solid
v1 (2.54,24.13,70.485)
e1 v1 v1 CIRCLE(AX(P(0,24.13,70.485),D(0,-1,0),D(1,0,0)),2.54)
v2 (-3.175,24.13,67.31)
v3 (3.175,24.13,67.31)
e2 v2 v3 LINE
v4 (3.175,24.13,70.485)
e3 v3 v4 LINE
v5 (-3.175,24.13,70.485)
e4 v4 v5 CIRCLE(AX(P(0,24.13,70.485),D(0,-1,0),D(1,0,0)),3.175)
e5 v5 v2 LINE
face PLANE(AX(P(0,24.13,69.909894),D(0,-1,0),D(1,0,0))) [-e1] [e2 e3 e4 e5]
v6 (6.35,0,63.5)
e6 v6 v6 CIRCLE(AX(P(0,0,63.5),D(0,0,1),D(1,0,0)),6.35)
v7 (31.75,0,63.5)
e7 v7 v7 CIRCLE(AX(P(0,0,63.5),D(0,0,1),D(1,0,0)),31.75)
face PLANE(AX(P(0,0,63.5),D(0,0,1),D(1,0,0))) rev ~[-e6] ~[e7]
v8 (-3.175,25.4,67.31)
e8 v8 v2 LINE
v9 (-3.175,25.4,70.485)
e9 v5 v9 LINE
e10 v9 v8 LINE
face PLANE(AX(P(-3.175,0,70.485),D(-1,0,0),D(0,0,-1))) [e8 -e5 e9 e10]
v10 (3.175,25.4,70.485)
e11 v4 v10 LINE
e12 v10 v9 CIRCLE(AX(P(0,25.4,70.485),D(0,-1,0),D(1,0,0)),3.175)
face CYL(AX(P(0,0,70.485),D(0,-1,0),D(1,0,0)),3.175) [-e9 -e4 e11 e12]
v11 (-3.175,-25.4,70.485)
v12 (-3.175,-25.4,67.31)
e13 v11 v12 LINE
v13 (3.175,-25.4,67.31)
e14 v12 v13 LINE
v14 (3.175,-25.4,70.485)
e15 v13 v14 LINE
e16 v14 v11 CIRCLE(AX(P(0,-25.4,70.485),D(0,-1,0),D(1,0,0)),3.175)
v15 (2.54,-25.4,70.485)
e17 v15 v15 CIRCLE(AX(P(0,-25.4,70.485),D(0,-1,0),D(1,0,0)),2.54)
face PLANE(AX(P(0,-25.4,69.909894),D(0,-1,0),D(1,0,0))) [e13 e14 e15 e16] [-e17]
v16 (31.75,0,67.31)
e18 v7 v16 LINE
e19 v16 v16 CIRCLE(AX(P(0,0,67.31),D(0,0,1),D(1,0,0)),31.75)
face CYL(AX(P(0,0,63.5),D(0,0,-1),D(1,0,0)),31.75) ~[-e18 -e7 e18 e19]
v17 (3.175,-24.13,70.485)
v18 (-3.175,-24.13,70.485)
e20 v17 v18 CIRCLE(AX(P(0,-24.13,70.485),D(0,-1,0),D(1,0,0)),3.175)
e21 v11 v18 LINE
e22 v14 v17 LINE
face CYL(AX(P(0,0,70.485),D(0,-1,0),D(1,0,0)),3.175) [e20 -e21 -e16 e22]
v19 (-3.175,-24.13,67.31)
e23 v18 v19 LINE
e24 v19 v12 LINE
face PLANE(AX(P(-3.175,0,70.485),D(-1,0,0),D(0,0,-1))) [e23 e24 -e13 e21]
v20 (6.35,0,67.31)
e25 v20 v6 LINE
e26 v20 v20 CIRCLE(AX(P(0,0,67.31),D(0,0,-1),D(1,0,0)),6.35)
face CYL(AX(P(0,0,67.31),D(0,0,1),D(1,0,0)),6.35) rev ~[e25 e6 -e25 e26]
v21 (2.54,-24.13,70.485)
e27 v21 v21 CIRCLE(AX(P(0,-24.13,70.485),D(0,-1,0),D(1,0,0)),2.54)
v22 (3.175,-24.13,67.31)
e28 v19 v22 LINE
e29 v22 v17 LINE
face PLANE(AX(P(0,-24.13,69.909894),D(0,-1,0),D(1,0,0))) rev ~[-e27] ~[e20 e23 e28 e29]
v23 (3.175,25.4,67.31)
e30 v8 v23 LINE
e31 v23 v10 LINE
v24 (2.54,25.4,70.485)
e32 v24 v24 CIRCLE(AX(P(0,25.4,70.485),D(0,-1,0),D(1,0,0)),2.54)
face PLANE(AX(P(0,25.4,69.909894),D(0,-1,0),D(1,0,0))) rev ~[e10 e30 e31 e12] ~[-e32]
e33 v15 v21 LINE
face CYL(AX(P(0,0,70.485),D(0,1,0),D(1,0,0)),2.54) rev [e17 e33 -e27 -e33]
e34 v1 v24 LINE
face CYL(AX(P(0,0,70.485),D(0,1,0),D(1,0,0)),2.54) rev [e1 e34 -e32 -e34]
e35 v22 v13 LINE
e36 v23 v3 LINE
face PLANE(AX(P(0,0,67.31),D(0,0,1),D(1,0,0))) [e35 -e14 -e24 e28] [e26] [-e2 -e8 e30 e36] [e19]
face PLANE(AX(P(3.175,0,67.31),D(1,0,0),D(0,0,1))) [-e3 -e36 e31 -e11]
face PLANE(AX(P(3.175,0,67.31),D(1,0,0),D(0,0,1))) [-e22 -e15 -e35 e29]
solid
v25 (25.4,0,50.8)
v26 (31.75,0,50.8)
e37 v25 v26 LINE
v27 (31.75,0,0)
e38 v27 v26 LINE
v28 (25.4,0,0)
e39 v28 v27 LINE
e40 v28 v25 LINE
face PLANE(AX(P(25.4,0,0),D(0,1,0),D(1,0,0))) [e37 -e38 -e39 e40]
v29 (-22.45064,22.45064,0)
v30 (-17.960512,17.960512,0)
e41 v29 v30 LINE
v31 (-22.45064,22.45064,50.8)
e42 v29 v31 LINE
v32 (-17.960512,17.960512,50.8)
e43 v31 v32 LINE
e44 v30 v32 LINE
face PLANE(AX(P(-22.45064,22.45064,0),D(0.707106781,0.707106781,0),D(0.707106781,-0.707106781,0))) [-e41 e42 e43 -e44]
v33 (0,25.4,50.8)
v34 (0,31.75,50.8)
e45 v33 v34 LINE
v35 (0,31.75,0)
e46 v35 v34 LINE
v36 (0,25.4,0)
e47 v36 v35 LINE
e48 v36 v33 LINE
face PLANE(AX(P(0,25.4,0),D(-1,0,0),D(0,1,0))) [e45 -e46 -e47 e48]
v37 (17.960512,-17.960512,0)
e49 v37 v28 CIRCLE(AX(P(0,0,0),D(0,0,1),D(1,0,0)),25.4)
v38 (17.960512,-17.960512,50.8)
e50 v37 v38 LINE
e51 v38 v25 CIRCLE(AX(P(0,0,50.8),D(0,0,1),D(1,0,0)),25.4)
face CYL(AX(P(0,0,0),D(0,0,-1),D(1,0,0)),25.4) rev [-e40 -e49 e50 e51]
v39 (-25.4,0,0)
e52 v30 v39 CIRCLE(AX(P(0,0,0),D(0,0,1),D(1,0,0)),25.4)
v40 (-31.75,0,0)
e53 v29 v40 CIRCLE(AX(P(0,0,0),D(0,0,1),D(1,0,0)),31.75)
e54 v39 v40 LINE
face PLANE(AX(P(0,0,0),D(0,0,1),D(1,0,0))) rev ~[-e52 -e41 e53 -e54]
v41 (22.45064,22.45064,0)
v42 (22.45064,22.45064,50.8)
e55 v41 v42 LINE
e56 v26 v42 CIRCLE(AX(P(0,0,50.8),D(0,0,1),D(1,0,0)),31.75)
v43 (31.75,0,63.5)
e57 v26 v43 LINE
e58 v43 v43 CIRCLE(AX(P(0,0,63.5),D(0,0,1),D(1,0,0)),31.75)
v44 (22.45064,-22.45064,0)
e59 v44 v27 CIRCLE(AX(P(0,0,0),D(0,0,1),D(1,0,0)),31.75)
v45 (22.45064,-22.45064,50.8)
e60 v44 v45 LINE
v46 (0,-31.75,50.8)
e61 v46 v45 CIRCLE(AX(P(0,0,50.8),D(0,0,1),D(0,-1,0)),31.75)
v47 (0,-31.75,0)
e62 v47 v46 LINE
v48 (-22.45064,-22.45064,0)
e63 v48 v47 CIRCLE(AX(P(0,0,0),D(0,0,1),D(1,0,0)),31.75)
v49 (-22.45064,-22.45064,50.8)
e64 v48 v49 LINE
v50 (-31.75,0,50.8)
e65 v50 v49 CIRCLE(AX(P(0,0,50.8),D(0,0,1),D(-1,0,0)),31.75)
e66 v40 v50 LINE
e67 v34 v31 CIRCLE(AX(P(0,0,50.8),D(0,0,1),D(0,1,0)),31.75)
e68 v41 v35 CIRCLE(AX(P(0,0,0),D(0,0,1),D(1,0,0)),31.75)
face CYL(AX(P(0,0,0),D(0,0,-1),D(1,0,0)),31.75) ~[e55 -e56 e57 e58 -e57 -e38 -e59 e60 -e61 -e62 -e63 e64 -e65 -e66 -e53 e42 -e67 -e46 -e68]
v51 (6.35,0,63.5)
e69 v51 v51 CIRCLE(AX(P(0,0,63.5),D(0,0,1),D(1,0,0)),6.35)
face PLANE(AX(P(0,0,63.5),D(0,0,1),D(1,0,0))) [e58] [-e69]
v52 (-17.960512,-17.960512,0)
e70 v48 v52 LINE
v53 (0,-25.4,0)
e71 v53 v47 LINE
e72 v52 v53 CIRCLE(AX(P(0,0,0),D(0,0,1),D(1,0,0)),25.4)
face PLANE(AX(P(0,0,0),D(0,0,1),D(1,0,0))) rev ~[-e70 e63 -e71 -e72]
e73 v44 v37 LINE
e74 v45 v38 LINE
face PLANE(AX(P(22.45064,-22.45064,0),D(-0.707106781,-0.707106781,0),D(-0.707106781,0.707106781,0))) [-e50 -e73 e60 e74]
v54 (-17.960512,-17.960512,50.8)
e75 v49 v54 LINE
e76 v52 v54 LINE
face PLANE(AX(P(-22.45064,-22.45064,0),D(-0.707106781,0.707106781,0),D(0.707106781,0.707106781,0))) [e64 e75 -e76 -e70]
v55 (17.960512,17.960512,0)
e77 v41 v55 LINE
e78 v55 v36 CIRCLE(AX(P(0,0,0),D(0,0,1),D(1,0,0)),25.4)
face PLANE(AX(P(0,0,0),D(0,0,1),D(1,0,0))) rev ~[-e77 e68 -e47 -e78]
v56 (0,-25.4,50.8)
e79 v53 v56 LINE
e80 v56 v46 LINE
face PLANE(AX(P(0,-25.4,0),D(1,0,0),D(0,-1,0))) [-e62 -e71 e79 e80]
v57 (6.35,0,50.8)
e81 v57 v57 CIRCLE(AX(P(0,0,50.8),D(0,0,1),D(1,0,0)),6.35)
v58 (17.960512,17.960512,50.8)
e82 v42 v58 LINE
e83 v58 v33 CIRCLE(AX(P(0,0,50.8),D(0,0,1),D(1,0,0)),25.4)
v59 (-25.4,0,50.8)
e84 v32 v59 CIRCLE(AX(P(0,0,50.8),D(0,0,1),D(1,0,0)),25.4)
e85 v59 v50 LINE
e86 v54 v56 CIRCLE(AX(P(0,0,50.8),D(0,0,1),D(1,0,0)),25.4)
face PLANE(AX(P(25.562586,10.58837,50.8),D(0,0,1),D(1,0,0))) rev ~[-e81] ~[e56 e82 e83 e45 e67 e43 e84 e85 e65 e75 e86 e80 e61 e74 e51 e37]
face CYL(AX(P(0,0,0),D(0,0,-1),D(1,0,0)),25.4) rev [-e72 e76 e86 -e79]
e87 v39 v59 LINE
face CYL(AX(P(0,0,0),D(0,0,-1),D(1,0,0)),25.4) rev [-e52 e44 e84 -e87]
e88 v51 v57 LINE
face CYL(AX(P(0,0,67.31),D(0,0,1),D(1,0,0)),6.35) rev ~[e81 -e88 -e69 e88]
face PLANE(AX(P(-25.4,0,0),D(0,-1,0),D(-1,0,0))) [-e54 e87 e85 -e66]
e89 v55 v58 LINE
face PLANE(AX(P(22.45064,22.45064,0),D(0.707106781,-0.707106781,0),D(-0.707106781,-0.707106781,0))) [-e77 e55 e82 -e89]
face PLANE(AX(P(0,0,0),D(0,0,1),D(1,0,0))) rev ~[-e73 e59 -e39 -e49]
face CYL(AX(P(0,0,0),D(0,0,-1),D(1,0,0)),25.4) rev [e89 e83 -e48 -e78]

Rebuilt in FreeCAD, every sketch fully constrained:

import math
import FreeCAD as App
import Part
import Sketcher
from FreeCAD import Vector
Q = App.Units.Quantity

doc = App.newDocument("Part")
body = doc.addObject("PartDesign::Body", "Body")

sketch1 = body.newObject("Sketcher::SketchObject", "Sketch")
sketch1.AttachmentSupport = (doc.getObject("XY_Plane"), [""])
sketch1.MapMode = "FlatFace"
sketch1.addGeometry(Part.Circle(Vector(0, 0, 0), Vector(0, 0, 1), 31.75), False)
sketch1.addConstraint(Sketcher.Constraint("Coincident", 0, 3, -1, 1))
sketch1.addConstraint(Sketcher.Constraint("Diameter", 0, Q("2.5 in")))
pad1 = body.newObject("PartDesign::Pad", "Pad")
pad1.Profile = sketch1
pad1.Length = Q("2.5 in")

sketch2 = body.newObject("Sketcher::SketchObject", "Sketch001")
sketch2.AttachmentSupport = (doc.getObject("XY_Plane"), [""])
sketch2.MapMode = "FlatFace"
sketch2.addGeometry(Part.Circle(Vector(0, 0, 0), Vector(0, 0, 1), 25.4), False)
sketch2.addConstraint(Sketcher.Constraint("Coincident", 0, 3, -1, 1))
sketch2.addConstraint(Sketcher.Constraint("Diameter", 0, Q("2 in")))
pocket1 = body.newObject("PartDesign::Pocket", "Pocket")
pocket1.Profile = sketch2
pocket1.Length = Q("2 in")
pocket1.Reversed = True

sketch3 = body.newObject("Sketcher::SketchObject", "Sketch002")
sketch3.AttachmentSupport = (doc.getObject("XY_Plane"), [""])
sketch3.MapMode = "FlatFace"
sketch3.addGeometry(Part.LineSegment(Vector(-22.45064, -22.45064, 0), Vector(-17.960512, -17.960512, 0)), False)
sketch3.addGeometry(Part.ArcOfCircle(Part.Circle(Vector(0, 0, 0), Vector(0, 0, 1), 25.4), math.radians(180), math.radians(225)), False)
sketch3.addGeometry(Part.LineSegment(Vector(-25.4, 0, 0), Vector(-31.75, 0, 0)), False)
sketch3.addGeometry(Part.ArcOfCircle(Part.Circle(Vector(0, 0, 0), Vector(0, 0, 1), 31.75), math.radians(180), math.radians(225)), False)
sketch3.addGeometry(Part.LineSegment(Vector(22.45064, -22.45064, 0), Vector(17.960512, -17.960512, 0)), False)
sketch3.addGeometry(Part.ArcOfCircle(Part.Circle(Vector(0, 0, 0), Vector(0, 0, 1), 25.4), math.radians(-90), math.radians(-45)), False)
sketch3.addGeometry(Part.LineSegment(Vector(0, -25.4, 0), Vector(0, -31.75, 0)), False)
sketch3.addGeometry(Part.ArcOfCircle(Part.Circle(Vector(0, 0, 0), Vector(0, 0, 1), 31.75), math.radians(-90), math.radians(-45)), False)
sketch3.addGeometry(Part.ArcOfCircle(Part.Circle(Vector(0, 0, 0), Vector(0, 0, 1), 25.4), math.radians(0), math.radians(45)), False)
sketch3.addGeometry(Part.LineSegment(Vector(25.4, 0, 0), Vector(31.75, 0, 0)), False)
sketch3.addGeometry(Part.ArcOfCircle(Part.Circle(Vector(0, 0, 0), Vector(0, 0, 1), 31.75), math.radians(0), math.radians(45)), False)
sketch3.addGeometry(Part.LineSegment(Vector(22.45064, 22.45064, 0), Vector(17.960512, 17.960512, 0)), False)
sketch3.addGeometry(Part.ArcOfCircle(Part.Circle(Vector(0, 0, 0), Vector(0, 0, 1), 25.4), math.radians(90), math.radians(135)), False)
sketch3.addGeometry(Part.LineSegment(Vector(0, 25.4, 0), Vector(0, 31.75, 0)), False)
sketch3.addGeometry(Part.ArcOfCircle(Part.Circle(Vector(0, 0, 0), Vector(0, 0, 1), 31.75), math.radians(90), math.radians(135)), False)
sketch3.addGeometry(Part.LineSegment(Vector(-22.45064, 22.45064, 0), Vector(-17.960512, 17.960512, 0)), False)
sketch3.addConstraint(Sketcher.Constraint("Coincident", 0, 2, 1, 2))
sketch3.addConstraint(Sketcher.Constraint("Coincident", 1, 1, 2, 1))
sketch3.addConstraint(Sketcher.Constraint("Coincident", 2, 2, 3, 1))
sketch3.addConstraint(Sketcher.Constraint("Coincident", 3, 2, 0, 1))
sketch3.addConstraint(Sketcher.Constraint("Coincident", 4, 2, 5, 2))
sketch3.addConstraint(Sketcher.Constraint("Coincident", 5, 1, 6, 1))
sketch3.addConstraint(Sketcher.Constraint("Coincident", 6, 2, 7, 1))
sketch3.addConstraint(Sketcher.Constraint("Coincident", 7, 2, 4, 1))
sketch3.addConstraint(Sketcher.Constraint("Coincident", 8, 1, 9, 1))
sketch3.addConstraint(Sketcher.Constraint("Coincident", 9, 2, 10, 1))
sketch3.addConstraint(Sketcher.Constraint("Coincident", 10, 2, 11, 1))
sketch3.addConstraint(Sketcher.Constraint("Coincident", 11, 2, 8, 2))
sketch3.addConstraint(Sketcher.Constraint("Coincident", 12, 1, 13, 1))
sketch3.addConstraint(Sketcher.Constraint("Coincident", 13, 2, 14, 1))
sketch3.addConstraint(Sketcher.Constraint("Coincident", 14, 2, 15, 1))
sketch3.addConstraint(Sketcher.Constraint("Coincident", 15, 2, 12, 2))
sketch3.addConstraint(Sketcher.Constraint("Horizontal", 2))
sketch3.addConstraint(Sketcher.Constraint("Vertical", 6))
sketch3.addConstraint(Sketcher.Constraint("Horizontal", 9))
sketch3.addConstraint(Sketcher.Constraint("Vertical", 13))
sketch3.addConstraint(Sketcher.Constraint("Coincident", 1, 3, -1, 1))
sketch3.addConstraint(Sketcher.Constraint("Coincident", 3, 3, -1, 1))
sketch3.addConstraint(Sketcher.Constraint("Coincident", 5, 3, -1, 1))
sketch3.addConstraint(Sketcher.Constraint("Coincident", 7, 3, -1, 1))
sketch3.addConstraint(Sketcher.Constraint("Coincident", 8, 3, -1, 1))
sketch3.addConstraint(Sketcher.Constraint("Coincident", 10, 3, -1, 1))
sketch3.addConstraint(Sketcher.Constraint("Coincident", 12, 3, -1, 1))
sketch3.addConstraint(Sketcher.Constraint("Coincident", 14, 3, -1, 1))
sketch3.addConstraint(Sketcher.Constraint("Equal", 1, 5))
sketch3.addConstraint(Sketcher.Constraint("Equal", 3, 7))
sketch3.addConstraint(Sketcher.Constraint("Equal", 5, 8))
sketch3.addConstraint(Sketcher.Constraint("Equal", 7, 10))
sketch3.addConstraint(Sketcher.Constraint("Equal", 8, 12))
sketch3.addConstraint(Sketcher.Constraint("Equal", 10, 14))
sketch3.addConstraint(Sketcher.Constraint("PointOnObject", 1, 1, -1))
sketch3.addConstraint(Sketcher.Constraint("PointOnObject", 5, 1, -2))
sketch3.addConstraint(Sketcher.Constraint("PointOnObject", 8, 1, -1))
sketch3.addConstraint(Sketcher.Constraint("PointOnObject", 12, 1, -2))
sketch3.addConstraint(Sketcher.Constraint("Perpendicular", 0, 4))
sketch3.addConstraint(Sketcher.Constraint("Perpendicular", 4, 11))
sketch3.addConstraint(Sketcher.Constraint("Perpendicular", 11, 15))
sketch3.addConstraint(Sketcher.Constraint("Horizontal", 0, 2, 4, 2))
sketch3.addConstraint(Sketcher.Constraint("Horizontal", 3, 2, 7, 2))
sketch3.addConstraint(Sketcher.Constraint("Horizontal", 10, 2, 14, 2))
sketch3.addConstraint(Sketcher.Constraint("Vertical", 7, 2, 10, 2))
sketch3.addConstraint(Sketcher.Constraint("Radius", 1, Q("1 in")))
sketch3.addConstraint(Sketcher.Constraint("Radius", 3, Q("1.25 in")))
sketch3.addConstraint(Sketcher.Constraint("DistanceX", 3, 2, -1, 1, Q("22.45064 mm")))
pocket2 = body.newObject("PartDesign::Pocket", "Pocket001")
pocket2.Profile = sketch3
pocket2.Length = Q("2 in")
pocket2.Reversed = True
body2 = doc.addObject("PartDesign::Body", "Body001")

sketch4 = body2.newObject("Sketcher::SketchObject", "Sketch003")
sketch4.AttachmentSupport = (doc.getObject("XY_Plane001"), [""])
sketch4.MapMode = "FlatFace"
sketch4.AttachmentOffset = App.Placement(Vector(0, 0, 2.5 * 25.4), App.Rotation())
sketch4.addGeometry(Part.Circle(Vector(0, 0, 0), Vector(0, 0, 1), 31.75), False)
sketch4.addConstraint(Sketcher.Constraint("Coincident", 0, 3, -1, 1))
sketch4.addConstraint(Sketcher.Constraint("Diameter", 0, Q("2.5 in")))
pad2 = body2.newObject("PartDesign::Pad", "Pad001")
pad2.Profile = sketch4
pad2.Length = Q("0.15 in")
body3 = doc.addObject("PartDesign::Body", "Body002")

sketch5 = body3.newObject("Sketcher::SketchObject", "Sketch004")
sketch5.AttachmentSupport = (doc.getObject("XY_Plane002"), [""])
sketch5.MapMode = "FlatFace"
sketch5.AttachmentOffset = App.Placement(Vector(0, 0, 2.65 * 25.4), App.Rotation())
sketch5.addGeometry(Part.Circle(Vector(0, 0, 0), Vector(0, 0, 1), 6.35), False)
sketch5.addConstraint(Sketcher.Constraint("Coincident", 0, 3, -1, 1))
sketch5.addConstraint(Sketcher.Constraint("Diameter", 0, Q("0.5 in")))
pad3 = body3.newObject("PartDesign::Pad", "Pad002")
pad3.Profile = sketch5
pad3.Length = 67.311
pad3.Reversed = True
doc.recompute()

body4 = doc.addObject("PartDesign::Body", "Body003")
body4.BaseFeature = body3
boolean = body.newObject("PartDesign::Boolean", "Boolean")
boolean.Type = "Cut"
boolean.addObjects([body4])
doc.recompute()

sketch6 = body.newObject("Sketcher::SketchObject", "Sketch005")
sketch6.AttachmentSupport = (doc.getObject("XY_Plane"), [""])
sketch6.MapMode = "FlatFace"
sketch6.AttachmentOffset = App.Placement(Vector(0, 0, 2.5 * 25.4), App.Rotation())
sketch6.addGeometry(Part.Circle(Vector(0, 0, 0), Vector(0, 0, 1), 6.35), False)
sketch6.addConstraint(Sketcher.Constraint("Coincident", 0, 3, -1, 1))
sketch6.addConstraint(Sketcher.Constraint("Diameter", 0, Q("0.5 in")))
pocket3 = body.newObject("PartDesign::Pocket", "Pocket002")
pocket3.Profile = sketch6
pocket3.Type = "ThroughAll"
doc.recompute()

boolean2 = body2.newObject("PartDesign::Boolean", "Boolean001")
boolean2.Type = "Cut"
boolean2.addObjects([body3])

sketch7 = body2.newObject("Sketcher::SketchObject", "Sketch006")
sketch7.AttachmentSupport = (doc.getObject("XZ_Plane001"), [""])
sketch7.MapMode = "FlatFace"
sketch7.addGeometry(Part.LineSegment(Vector(-3.175, 70.485, 0), Vector(-3.175, 67.31, 0)), False)
sketch7.addGeometry(Part.LineSegment(Vector(-3.175, 67.31, 0), Vector(3.175, 67.31, 0)), False)
sketch7.addGeometry(Part.LineSegment(Vector(3.175, 67.31, 0), Vector(3.175, 70.485, 0)), False)
sketch7.addGeometry(Part.ArcOfCircle(Part.Circle(Vector(0, 70.485, 0), Vector(0, 0, 1), 3.175), math.radians(0), math.radians(180)), False)
sketch7.addGeometry(Part.Circle(Vector(0, 70.485, 0), Vector(0, 0, 1), 2.54), False)
sketch7.addConstraint(Sketcher.Constraint("Coincident", 0, 2, 1, 1))
sketch7.addConstraint(Sketcher.Constraint("Coincident", 1, 2, 2, 1))
sketch7.addConstraint(Sketcher.Constraint("Tangent", 2, 2, 3, 1))
sketch7.addConstraint(Sketcher.Constraint("Tangent", 3, 2, 0, 1))
sketch7.addConstraint(Sketcher.Constraint("Vertical", 0))
sketch7.addConstraint(Sketcher.Constraint("Horizontal", 1))
sketch7.addConstraint(Sketcher.Constraint("Vertical", 2))
sketch7.addConstraint(Sketcher.Constraint("Coincident", 4, 3, 3, 3))
sketch7.addConstraint(Sketcher.Constraint("PointOnObject", 3, 3, -2))
sketch7.addConstraint(Sketcher.Constraint("Diameter", 4, Q("0.2 in")))
sketch7.addConstraint(Sketcher.Constraint("Radius", 3, Q("0.125 in")))
sketch7.addConstraint(Sketcher.Constraint("DistanceY", 0, 2, 0, 1, Q("0.125 in")))
sketch7.addConstraint(Sketcher.Constraint("DistanceY", -1, 1, 0, 2, Q("2.65 in")))
pad4 = body2.newObject("PartDesign::Pad", "Pad003")
pad4.Profile = sketch7
pad4.Length = Q("2 in")
pad4.Midplane = True

sketch8 = body2.newObject("Sketcher::SketchObject", "Sketch007")
sketch8.AttachmentSupport = (doc.getObject("XZ_Plane001"), [""])
sketch8.MapMode = "FlatFace"
sketch8.addGeometry(Part.LineSegment(Vector(-3.175, 70.485, 0), Vector(-3.175, 67.31, 0)), False)
sketch8.addGeometry(Part.LineSegment(Vector(-3.175, 67.31, 0), Vector(3.175, 67.31, 0)), False)
sketch8.addGeometry(Part.LineSegment(Vector(3.175, 67.31, 0), Vector(3.175, 70.485, 0)), False)
sketch8.addGeometry(Part.ArcOfCircle(Part.Circle(Vector(0, 70.485, 0), Vector(0, 0, 1), 3.175), math.radians(0), math.radians(180)), False)
sketch8.addGeometry(Part.Circle(Vector(0, 70.485, 0), Vector(0, 0, 1), 2.54), False)
sketch8.addConstraint(Sketcher.Constraint("Coincident", 0, 2, 1, 1))
sketch8.addConstraint(Sketcher.Constraint("Coincident", 1, 2, 2, 1))
sketch8.addConstraint(Sketcher.Constraint("Tangent", 2, 2, 3, 1))
sketch8.addConstraint(Sketcher.Constraint("Tangent", 3, 2, 0, 1))
sketch8.addConstraint(Sketcher.Constraint("Vertical", 0))
sketch8.addConstraint(Sketcher.Constraint("Horizontal", 1))
sketch8.addConstraint(Sketcher.Constraint("Vertical", 2))
sketch8.addConstraint(Sketcher.Constraint("Coincident", 4, 3, 3, 3))
sketch8.addConstraint(Sketcher.Constraint("PointOnObject", 3, 3, -2))
sketch8.addConstraint(Sketcher.Constraint("Diameter", 4, Q("0.2 in")))
sketch8.addConstraint(Sketcher.Constraint("Radius", 3, Q("0.125 in")))
sketch8.addConstraint(Sketcher.Constraint("DistanceY", 0, 2, 0, 1, Q("0.125 in")))
sketch8.addConstraint(Sketcher.Constraint("DistanceY", -1, 1, 0, 2, Q("2.65 in")))
pocket4 = body2.newObject("PartDesign::Pocket", "Pocket003")
pocket4.Profile = sketch8
pocket4.Length = Q("1.9 in")
pocket4.Midplane = True

doc.recompute()
